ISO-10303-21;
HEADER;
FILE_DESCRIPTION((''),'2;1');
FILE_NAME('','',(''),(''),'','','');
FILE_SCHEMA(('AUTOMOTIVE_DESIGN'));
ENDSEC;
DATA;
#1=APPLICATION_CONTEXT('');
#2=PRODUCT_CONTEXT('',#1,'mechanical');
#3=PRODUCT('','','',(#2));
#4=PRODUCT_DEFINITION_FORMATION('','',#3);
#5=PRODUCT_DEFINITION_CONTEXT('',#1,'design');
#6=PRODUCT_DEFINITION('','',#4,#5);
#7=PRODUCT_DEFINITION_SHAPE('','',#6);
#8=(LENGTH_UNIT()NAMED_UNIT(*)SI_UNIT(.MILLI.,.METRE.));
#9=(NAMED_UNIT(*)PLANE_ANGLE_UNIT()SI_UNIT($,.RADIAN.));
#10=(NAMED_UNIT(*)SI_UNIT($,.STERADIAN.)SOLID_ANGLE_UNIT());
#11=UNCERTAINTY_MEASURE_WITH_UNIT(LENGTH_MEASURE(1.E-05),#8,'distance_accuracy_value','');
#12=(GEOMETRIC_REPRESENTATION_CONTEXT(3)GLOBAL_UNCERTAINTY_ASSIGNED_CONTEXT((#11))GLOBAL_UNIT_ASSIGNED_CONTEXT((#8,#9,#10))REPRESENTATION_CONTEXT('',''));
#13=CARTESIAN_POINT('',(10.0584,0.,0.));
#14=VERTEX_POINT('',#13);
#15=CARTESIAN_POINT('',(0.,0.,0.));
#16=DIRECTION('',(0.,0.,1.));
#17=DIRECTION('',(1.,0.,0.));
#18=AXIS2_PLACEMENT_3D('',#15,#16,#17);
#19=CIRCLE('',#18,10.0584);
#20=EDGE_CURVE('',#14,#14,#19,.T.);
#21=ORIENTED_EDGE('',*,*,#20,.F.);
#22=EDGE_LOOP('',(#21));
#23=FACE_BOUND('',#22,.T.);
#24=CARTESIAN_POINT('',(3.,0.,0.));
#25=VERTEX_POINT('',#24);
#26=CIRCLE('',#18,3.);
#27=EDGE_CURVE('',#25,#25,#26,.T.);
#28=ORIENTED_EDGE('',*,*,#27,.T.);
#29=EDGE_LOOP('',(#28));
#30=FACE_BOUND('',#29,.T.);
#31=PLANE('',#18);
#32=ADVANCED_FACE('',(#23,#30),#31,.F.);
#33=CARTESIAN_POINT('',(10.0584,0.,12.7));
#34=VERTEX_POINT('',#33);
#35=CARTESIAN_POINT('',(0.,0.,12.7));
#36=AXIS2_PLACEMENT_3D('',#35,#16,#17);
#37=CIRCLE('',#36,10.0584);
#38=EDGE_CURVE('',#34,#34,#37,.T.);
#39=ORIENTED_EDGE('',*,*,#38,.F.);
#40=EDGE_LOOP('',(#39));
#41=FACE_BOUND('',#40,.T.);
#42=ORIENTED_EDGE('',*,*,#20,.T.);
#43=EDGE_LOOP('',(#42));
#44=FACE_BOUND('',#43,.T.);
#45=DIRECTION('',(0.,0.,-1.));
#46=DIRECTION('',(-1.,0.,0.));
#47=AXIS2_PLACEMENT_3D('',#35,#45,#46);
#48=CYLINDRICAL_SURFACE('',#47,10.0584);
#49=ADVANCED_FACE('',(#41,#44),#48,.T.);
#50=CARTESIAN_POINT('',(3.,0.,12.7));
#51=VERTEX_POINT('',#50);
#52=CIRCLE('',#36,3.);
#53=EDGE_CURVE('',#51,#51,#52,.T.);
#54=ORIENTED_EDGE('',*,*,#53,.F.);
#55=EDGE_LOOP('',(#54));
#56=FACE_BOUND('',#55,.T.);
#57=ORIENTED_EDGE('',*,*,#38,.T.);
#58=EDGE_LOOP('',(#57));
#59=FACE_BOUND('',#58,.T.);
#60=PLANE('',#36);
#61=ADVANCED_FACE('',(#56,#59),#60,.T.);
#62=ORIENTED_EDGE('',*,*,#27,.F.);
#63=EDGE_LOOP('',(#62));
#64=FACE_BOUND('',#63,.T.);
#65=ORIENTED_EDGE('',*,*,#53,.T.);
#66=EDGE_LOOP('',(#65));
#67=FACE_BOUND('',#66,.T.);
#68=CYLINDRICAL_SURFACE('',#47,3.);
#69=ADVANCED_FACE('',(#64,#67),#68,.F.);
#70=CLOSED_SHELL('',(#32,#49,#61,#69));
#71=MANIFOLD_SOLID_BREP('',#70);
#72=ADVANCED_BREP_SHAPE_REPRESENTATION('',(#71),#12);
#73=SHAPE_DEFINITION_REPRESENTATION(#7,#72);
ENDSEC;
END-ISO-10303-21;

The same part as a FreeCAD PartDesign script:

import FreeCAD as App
import Part
import Sketcher
Q = App.Units.Quantity

doc = App.newDocument("Part")
body = doc.addObject("PartDesign::Body", "Body")

# Sketch on XY plane
sketch1 = body.newObject("Sketcher::SketchObject", "Sketch")
sketch1.AttachmentSupport = (doc.getObject("XY_Plane"), [""])
sketch1.MapMode = "FlatFace"
sketch1.addGeometry(Part.Circle(App.Vector(0, 0, 0), App.Vector(0, 0, 1), 10.1), False)
sketch1.addGeometry(Part.Circle(App.Vector(0, 0, 0), App.Vector(0, 0, 1), 3), False)
sketch1.addConstraint(Sketcher.Constraint("Coincident", 0, 3, -1, 1))
sketch1.addConstraint(Sketcher.Constraint("Coincident", 1, 3, -1, 1))
sketch1.addConstraint(Sketcher.Constraint("Diameter", 0, Q("0.792 in")))
sketch1.addConstraint(Sketcher.Constraint("Diameter", 1, Q("6 mm")))
pad1 = body.newObject("PartDesign::Pad", "Pad")
pad1.Profile = sketch1
pad1.Length = Q("0.5 in")

doc.recompute()
